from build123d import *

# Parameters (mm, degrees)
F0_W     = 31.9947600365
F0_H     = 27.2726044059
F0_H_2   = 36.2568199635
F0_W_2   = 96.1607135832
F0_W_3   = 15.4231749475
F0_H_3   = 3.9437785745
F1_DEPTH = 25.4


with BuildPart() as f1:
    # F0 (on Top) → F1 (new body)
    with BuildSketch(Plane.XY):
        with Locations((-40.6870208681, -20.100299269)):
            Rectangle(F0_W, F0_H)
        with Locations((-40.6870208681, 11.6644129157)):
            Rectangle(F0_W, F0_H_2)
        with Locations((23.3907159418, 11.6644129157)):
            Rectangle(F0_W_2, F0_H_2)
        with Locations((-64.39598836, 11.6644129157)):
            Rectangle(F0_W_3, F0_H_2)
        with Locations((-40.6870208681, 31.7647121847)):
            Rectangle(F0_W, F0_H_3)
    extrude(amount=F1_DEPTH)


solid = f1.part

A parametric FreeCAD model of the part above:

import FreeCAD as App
import Part
import Sketcher
Q = App.Units.Quantity


def add_polygon(sketch, points):
    """Adds a closed chain of lines whose ends are joined by coincident constraints."""
    first, n = sketch.GeometryCount, len(points)
    for a, b in zip(points, points[1:] + points[:1]):
        sketch.addGeometry(Part.LineSegment(App.Vector(*a, 0), App.Vector(*b, 0)), False)
    for i in range(n):
        sketch.addConstraint(Sketcher.Constraint("Coincident", first + i, 2, first + (i + 1) % n, 1))

doc = App.newDocument("Part")
body = doc.addObject("PartDesign::Body", "Body")

sketch1 = body.newObject("Sketcher::SketchObject", "Sketch")
sketch1.AttachmentSupport = (doc.getObject("XY_Plane"), [""])
sketch1.MapMode = "FlatFace"
add_polygon(sketch1, [(-56.7, -33.7), (-24.7, -33.7), (-24.7, -6.5), (71.5, -6.5), (71.5, 29.8), (-24.7, 29.8), (-24.7, 33.7), (-56.7, 33.7), (-56.7, 29.8), (-72.1, 29.8), (-72.1, -6.5), (-56.7, -6.5)])
sketch1.addConstraint([
    Sketcher.Constraint("Horizontal", 0),
    Sketcher.Constraint("Vertical", 1),
    Sketcher.Constraint("Horizontal", 2),
    Sketcher.Constraint("Vertical", 3),
    Sketcher.Constraint("Horizontal", 4),
    Sketcher.Constraint("Vertical", 5),
    Sketcher.Constraint("Horizontal", 6),
    Sketcher.Constraint("Vertical", 7),
    Sketcher.Constraint("Horizontal", 8),
    Sketcher.Constraint("Vertical", 9),
    Sketcher.Constraint("Horizontal", 10),
    Sketcher.Constraint("Vertical", 11),
    Sketcher.Constraint("Symmetric", 0, 2, 5, 2, -1),
    Sketcher.Constraint("Horizontal", 4, 2, 7, 2),
    Sketcher.Constraint("Horizontal", 2, 2, 9, 2),
    Sketcher.Constraint("Vertical", 7, 2, 10, 2),
    Sketcher.Constraint("DistanceX", 0, 1, 0, 2, Q("31.99476 mm")),
    Sketcher.Constraint("DistanceY", 3, 1, 3, 2, Q("36.25682 mm")),
    Sketcher.Constraint("DistanceY", 5, 1, 5, 2, Q("3.943779 mm")),
    Sketcher.Constraint("DistanceY", 0, 2, -1, 1, Q("33.736601 mm")),
    Sketcher.Constraint("DistanceX", 6, 2, -1, 1, Q("56.684401 mm")),
    Sketcher.Constraint("DistanceX", 2, 1, 2, 2, Q("96.160714 mm")),
    Sketcher.Constraint("DistanceX", 8, 2, 8, 1, Q("15.423175 mm")),
])
pad1 = body.newObject("PartDesign::Pad", "Pad")
pad1.Profile = sketch1
pad1.Length = Q("1 in")

doc.recompute()
